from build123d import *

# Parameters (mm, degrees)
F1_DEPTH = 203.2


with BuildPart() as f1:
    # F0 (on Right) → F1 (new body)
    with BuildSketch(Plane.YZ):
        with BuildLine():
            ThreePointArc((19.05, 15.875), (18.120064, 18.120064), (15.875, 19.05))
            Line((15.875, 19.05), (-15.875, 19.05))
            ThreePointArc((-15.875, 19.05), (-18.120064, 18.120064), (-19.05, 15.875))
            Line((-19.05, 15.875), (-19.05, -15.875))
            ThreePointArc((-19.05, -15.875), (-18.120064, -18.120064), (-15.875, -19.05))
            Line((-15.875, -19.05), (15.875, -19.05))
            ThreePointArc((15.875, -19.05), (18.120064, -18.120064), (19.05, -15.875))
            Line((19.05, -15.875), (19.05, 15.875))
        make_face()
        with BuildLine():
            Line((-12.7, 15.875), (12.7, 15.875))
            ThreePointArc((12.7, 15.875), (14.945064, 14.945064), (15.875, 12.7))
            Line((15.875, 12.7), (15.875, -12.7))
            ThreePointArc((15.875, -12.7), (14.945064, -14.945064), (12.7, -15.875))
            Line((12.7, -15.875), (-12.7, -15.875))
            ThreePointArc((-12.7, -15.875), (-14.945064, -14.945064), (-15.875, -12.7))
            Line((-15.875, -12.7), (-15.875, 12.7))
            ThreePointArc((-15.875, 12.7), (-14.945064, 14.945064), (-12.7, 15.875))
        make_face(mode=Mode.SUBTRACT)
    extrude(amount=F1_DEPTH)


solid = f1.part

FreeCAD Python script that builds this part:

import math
import FreeCAD as App
import Part
import Sketcher
from FreeCAD import Vector
Q = App.Units.Quantity

doc = App.newDocument("Part")
body = doc.addObject("PartDesign::Body", "Body")

sketch1 = body.newObject("Sketcher::SketchObject", "Sketch")
sketch1.AttachmentSupport = (doc.getObject("YZ_Plane"), [""])
sketch1.MapMode = "FlatFace"
sketch1.addGeometry(Part.ArcOfCircle(Part.Circle(Vector(15.9, 15.9, 0), Vector(0, 0, 1), 3.2), math.radians(0), math.radians(90)), False)
sketch1.addGeometry(Part.LineSegment(Vector(15.9, 19.1, 0), Vector(-15.9, 19.1, 0)), False)
sketch1.addGeometry(Part.ArcOfCircle(Part.Circle(Vector(-15.9, 15.9, 0), Vector(0, 0, 1), 3.2), math.radians(90), math.radians(180)), False)
sketch1.addGeometry(Part.LineSegment(Vector(-19.1, 15.9, 0), Vector(-19.1, -15.9, 0)), False)
sketch1.addGeometry(Part.ArcOfCircle(Part.Circle(Vector(-15.9, -15.9, 0), Vector(0, 0, 1), 3.2), math.radians(-180), math.radians(-90)), False)
sketch1.addGeometry(Part.LineSegment(Vector(-15.9, -19.1, 0), Vector(15.9, -19.1, 0)), False)
sketch1.addGeometry(Part.ArcOfCircle(Part.Circle(Vector(15.9, -15.9, 0), Vector(0, 0, 1), 3.2), math.radians(-90), math.radians(0)), False)
sketch1.addGeometry(Part.LineSegment(Vector(19.1, -15.9, 0), Vector(19.1, 15.9, 0)), False)
sketch1.addGeometry(Part.ArcOfCircle(Part.Circle(Vector(-12.7, 12.7, 0), Vector(0, 0, 1), 3.2), math.radians(90), math.radians(180)), False)
sketch1.addGeometry(Part.LineSegment(Vector(-12.7, 15.9, 0), Vector(12.7, 15.9, 0)), False)
sketch1.addGeometry(Part.ArcOfCircle(Part.Circle(Vector(12.7, 12.7, 0), Vector(0, 0, 1), 3.2), math.radians(0), math.radians(90)), False)
sketch1.addGeometry(Part.LineSegment(Vector(15.9, 12.7, 0), Vector(15.9, -12.7, 0)), False)
sketch1.addGeometry(Part.ArcOfCircle(Part.Circle(Vector(12.7, -12.7, 0), Vector(0, 0, 1), 3.2), math.radians(-90), math.radians(0)), False)
sketch1.addGeometry(Part.LineSegment(Vector(12.7, -15.9, 0), Vector(-12.7, -15.9, 0)), False)
sketch1.addGeometry(Part.ArcOfCircle(Part.Circle(Vector(-12.7, -12.7, 0), Vector(0, 0, 1), 3.2), math.radians(-180), math.radians(-90)), False)
sketch1.addGeometry(Part.LineSegment(Vector(-15.9, -12.7, 0), Vector(-15.9, 12.7, 0)), False)
sketch1.addConstraint(Sketcher.Constraint("Tangent", 0, 2, 1, 1))
sketch1.addConstraint(Sketcher.Constraint("Tangent", 1, 2, 2, 1))
sketch1.addConstraint(Sketcher.Constraint("Tangent", 2, 2, 3, 1))
sketch1.addConstraint(Sketcher.Constraint("Tangent", 3, 2, 4, 1))
sketch1.addConstraint(Sketcher.Constraint("Tangent", 4, 2, 5, 1))
sketch1.addConstraint(Sketcher.Constraint("Tangent", 5, 2, 6, 1))
sketch1.addConstraint(Sketcher.Constraint("Tangent", 6, 2, 7, 1))
sketch1.addConstraint(Sketcher.Constraint("Tangent", 7, 2, 0, 1))
sketch1.addConstraint(Sketcher.Constraint("Tangent", 8, 1, 9, 1))
sketch1.addConstraint(Sketcher.Constraint("Tangent", 9, 2, 10, 2))
sketch1.addConstraint(Sketcher.Constraint("Tangent", 10, 1, 11, 1))
sketch1.addConstraint(Sketcher.Constraint("Tangent", 11, 2, 12, 2))
sketch1.addConstraint(Sketcher.Constraint("Tangent", 12, 1, 13, 1))
sketch1.addConstraint(Sketcher.Constraint("Tangent", 13, 2, 14, 2))
sketch1.addConstraint(Sketcher.Constraint("Tangent", 14, 1, 15, 1))
sketch1.addConstraint(Sketcher.Constraint("Tangent", 15, 2, 8, 2))
sketch1.addConstraint(Sketcher.Constraint("Horizontal", 1))
sketch1.addConstraint(Sketcher.Constraint("Vertical", 3))
sketch1.addConstraint(Sketcher.Constraint("Horizontal", 5))
sketch1.addConstraint(Sketcher.Constraint("Vertical", 7))
sketch1.addConstraint(Sketcher.Constraint("Horizontal", 9))
sketch1.addConstraint(Sketcher.Constraint("Vertical", 11))
sketch1.addConstraint(Sketcher.Constraint("Horizontal", 13))
sketch1.addConstraint(Sketcher.Constraint("Vertical", 15))
sketch1.addConstraint(Sketcher.Constraint("Equal", 0, 2))
sketch1.addConstraint(Sketcher.Constraint("Equal", 2, 4))
sketch1.addConstraint(Sketcher.Constraint("Equal", 4, 6))
sketch1.addConstraint(Sketcher.Constraint("Equal", 6, 8))
sketch1.addConstraint(Sketcher.Constraint("Equal", 8, 10))
sketch1.addConstraint(Sketcher.Constraint("Equal", 10, 12))
sketch1.addConstraint(Sketcher.Constraint("Equal", 12, 14))
sketch1.addConstraint(Sketcher.Constraint("Symmetric", 0, 3, 4, 3, -1, 1))
sketch1.addConstraint(Sketcher.Constraint("Symmetric", 8, 3, 12, 3, -1, 1))
sketch1.addConstraint(Sketcher.Constraint("Horizontal", 7, 2, 8, 1))
sketch1.addConstraint(Sketcher.Constraint("Vertical", 5, 2, 10, 1))
sketch1.addConstraint(Sketcher.Constraint("Equal", 5, 3))
sketch1.addConstraint(Sketcher.Constraint("DistanceX", 9, 1, 9, 2, Q("1 in")))
sketch1.addConstraint(Sketcher.Constraint("Radius", 0, Q("0.125 in")))
pad1 = body.newObject("PartDesign::Pad", "Pad")
pad1.Profile = sketch1
pad1.Length = Q("8 in")

doc.recompute()
